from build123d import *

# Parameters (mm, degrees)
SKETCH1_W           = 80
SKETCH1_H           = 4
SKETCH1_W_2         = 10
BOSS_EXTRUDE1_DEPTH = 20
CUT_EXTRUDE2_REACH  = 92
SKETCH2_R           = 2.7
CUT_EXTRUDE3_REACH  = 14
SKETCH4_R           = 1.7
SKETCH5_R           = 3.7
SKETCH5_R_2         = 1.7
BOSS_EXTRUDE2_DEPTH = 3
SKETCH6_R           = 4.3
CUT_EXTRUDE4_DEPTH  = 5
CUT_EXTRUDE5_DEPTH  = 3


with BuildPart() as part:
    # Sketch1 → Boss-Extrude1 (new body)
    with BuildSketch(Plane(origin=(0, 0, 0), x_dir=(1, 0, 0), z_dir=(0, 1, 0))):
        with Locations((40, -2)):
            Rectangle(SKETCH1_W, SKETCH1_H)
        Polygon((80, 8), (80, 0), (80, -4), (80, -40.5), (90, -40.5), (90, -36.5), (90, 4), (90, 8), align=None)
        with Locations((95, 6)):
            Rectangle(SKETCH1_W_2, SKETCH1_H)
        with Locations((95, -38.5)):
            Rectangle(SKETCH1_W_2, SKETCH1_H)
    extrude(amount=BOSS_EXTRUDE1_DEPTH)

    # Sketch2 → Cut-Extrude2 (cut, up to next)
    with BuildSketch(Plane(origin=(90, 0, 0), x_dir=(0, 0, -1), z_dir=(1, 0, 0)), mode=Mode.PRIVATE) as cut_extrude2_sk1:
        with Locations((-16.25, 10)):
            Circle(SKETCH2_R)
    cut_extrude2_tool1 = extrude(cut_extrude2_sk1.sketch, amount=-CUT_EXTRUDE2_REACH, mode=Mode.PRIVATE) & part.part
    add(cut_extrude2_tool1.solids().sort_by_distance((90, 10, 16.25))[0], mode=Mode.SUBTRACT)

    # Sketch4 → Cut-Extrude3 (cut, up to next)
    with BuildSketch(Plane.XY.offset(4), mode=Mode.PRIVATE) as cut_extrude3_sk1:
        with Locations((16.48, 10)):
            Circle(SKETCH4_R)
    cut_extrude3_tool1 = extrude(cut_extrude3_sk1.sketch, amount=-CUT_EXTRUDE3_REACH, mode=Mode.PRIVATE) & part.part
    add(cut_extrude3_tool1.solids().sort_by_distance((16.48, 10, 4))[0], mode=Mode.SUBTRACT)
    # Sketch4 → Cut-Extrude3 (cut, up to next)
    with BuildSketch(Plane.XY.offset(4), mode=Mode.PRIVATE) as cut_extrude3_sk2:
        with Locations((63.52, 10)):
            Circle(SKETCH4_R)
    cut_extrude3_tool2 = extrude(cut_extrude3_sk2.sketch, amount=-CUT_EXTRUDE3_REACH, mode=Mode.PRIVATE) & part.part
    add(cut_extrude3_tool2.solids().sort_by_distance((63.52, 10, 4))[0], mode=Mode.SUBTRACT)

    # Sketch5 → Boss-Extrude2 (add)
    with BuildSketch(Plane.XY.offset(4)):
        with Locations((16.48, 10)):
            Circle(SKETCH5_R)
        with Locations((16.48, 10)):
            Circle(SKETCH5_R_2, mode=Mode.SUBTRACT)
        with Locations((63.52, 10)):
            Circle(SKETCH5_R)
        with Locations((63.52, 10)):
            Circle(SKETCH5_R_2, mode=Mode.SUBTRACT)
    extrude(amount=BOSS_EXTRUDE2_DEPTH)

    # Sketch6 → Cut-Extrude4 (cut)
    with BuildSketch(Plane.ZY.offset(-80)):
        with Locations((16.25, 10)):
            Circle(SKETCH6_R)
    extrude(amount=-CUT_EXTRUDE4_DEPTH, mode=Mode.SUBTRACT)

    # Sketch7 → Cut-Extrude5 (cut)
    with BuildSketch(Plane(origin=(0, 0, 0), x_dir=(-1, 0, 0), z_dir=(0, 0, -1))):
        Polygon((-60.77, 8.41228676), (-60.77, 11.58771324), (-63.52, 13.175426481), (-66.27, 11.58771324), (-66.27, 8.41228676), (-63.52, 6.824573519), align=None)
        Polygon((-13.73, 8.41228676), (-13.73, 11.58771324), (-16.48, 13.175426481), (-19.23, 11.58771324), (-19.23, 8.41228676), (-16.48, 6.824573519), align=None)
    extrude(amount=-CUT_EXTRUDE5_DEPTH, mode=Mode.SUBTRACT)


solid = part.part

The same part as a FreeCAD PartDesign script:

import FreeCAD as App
import Part
import Sketcher
from FreeCAD import Vector
Q = App.Units.Quantity


def add_polygon(sketch, points):
    """Adds a closed chain of lines whose ends are joined by coincident constraints."""
    first, n = sketch.GeometryCount, len(points)
    for a, b in zip(points, points[1:] + points[:1]):
        sketch.addGeometry(Part.LineSegment(App.Vector(*a, 0), App.Vector(*b, 0)), False)
    for i in range(n):
        sketch.addConstraint(Sketcher.Constraint("Coincident", first + i, 2, first + (i + 1) % n, 1))

doc = App.newDocument("Part")
body = doc.addObject("PartDesign::Body", "Body")

# Sketch on XZ plane
sketch1 = body.newObject("Sketcher::SketchObject", "Sketch")
sketch1.AttachmentSupport = (doc.getObject("XZ_Plane"), [""])
sketch1.MapMode = "FlatFace"
add_polygon(sketch1, [(0, 0), (0, 4), (80, 4), (80, 40.5), (100, 40.5), (100, 36.5), (90, 36.5), (90, -4), (100, -4), (100, -8), (80, -8), (80, 0)])  # lines 0-11
sketch1.addConstraint(Sketcher.Constraint("Vertical", 0))
sketch1.addConstraint(Sketcher.Constraint("Horizontal", 1))
sketch1.addConstraint(Sketcher.Constraint("Vertical", 2))
sketch1.addConstraint(Sketcher.Constraint("Horizontal", 3))
sketch1.addConstraint(Sketcher.Constraint("Vertical", 4))
sketch1.addConstraint(Sketcher.Constraint("Horizontal", 5))
sketch1.addConstraint(Sketcher.Constraint("Vertical", 6))
sketch1.addConstraint(Sketcher.Constraint("Horizontal", 7))
sketch1.addConstraint(Sketcher.Constraint("Vertical", 8))
sketch1.addConstraint(Sketcher.Constraint("Horizontal", 9))
sketch1.addConstraint(Sketcher.Constraint("Vertical", 10))
sketch1.addConstraint(Sketcher.Constraint("Horizontal", 11))
sketch1.addConstraint(Sketcher.Constraint("Coincident", 11, 2, -1, 1))
sketch1.addConstraint(Sketcher.Constraint("Vertical", 4, 2, 7, 2))
sketch1.addConstraint(Sketcher.Constraint("Vertical", 2, 2, 9, 2))
sketch1.addConstraint(Sketcher.Constraint("Equal", 0, 4))
sketch1.addConstraint(Sketcher.Constraint("Equal", 4, 8))
sketch1.addConstraint(Sketcher.Constraint("DistanceX", 1, 1, 1, 2, 80.0))
sketch1.addConstraint(Sketcher.Constraint("DistanceX", 3, 1, 3, 2, 20.0))
sketch1.addConstraint(Sketcher.Constraint("DistanceX", 5, 2, 5, 1, 10.0))
sketch1.addConstraint(Sketcher.Constraint("DistanceY", 0, 1, 0, 2, 4.0))
sketch1.addConstraint(Sketcher.Constraint("DistanceY", 10, 1, 10, 2, 8.0))
sketch1.addConstraint(Sketcher.Constraint("DistanceY", 2, 1, 2, 2, 36.5))
pad1 = body.newObject("PartDesign::Pad", "Pad")
pad1.Profile = sketch1
pad1.Length = 20
pad1.Reversed = True

# Sketch on YZ plane
sketch2 = body.newObject("Sketcher::SketchObject", "Sketch001")
sketch2.AttachmentSupport = (doc.getObject("YZ_Plane"), [""])
sketch2.MapMode = "FlatFace"
sketch2.AttachmentOffset = App.Placement(Vector(0, 0, 90), App.Rotation())
sketch2.addGeometry(Part.Circle(Vector(10, 16.2, 0), Vector(0, 0, 1), 2.7), False)
sketch2.addConstraint(Sketcher.Constraint("Diameter", 0, 5.4))
sketch2.addConstraint(Sketcher.Constraint("DistanceX", -1, 1, 0, 3, 10.0))
sketch2.addConstraint(Sketcher.Constraint("DistanceY", -1, 1, 0, 3, 16.25))
pocket1 = body.newObject("PartDesign::Pocket", "Pocket")
pocket1.Profile = sketch2
pocket1.Type = "UpToFirst"

# Sketch on XY plane
sketch3 = body.newObject("Sketcher::SketchObject", "Sketch002")
sketch3.AttachmentSupport = (doc.getObject("XY_Plane"), [""])
sketch3.MapMode = "FlatFace"
sketch3.AttachmentOffset = App.Placement(Vector(0, 0, 4), App.Rotation())
sketch3.addGeometry(Part.Circle(Vector(16.5, 10, 0), Vector(0, 0, 1), 1.7), False)
sketch3.addConstraint(Sketcher.Constraint("Diameter", 0, 3.4))
sketch3.addConstraint(Sketcher.Constraint("DistanceY", -1, 1, 0, 3, 10.0))
sketch3.addConstraint(Sketcher.Constraint("DistanceX", -1, 1, 0, 3, 16.48))
pocket2 = body.newObject("PartDesign::Pocket", "Pocket001")
pocket2.Profile = sketch3
pocket2.Type = "UpToFirst"

# Sketch on XY plane
sketch4 = body.newObject("Sketcher::SketchObject", "Sketch003")
sketch4.AttachmentSupport = (doc.getObject("XY_Plane"), [""])
sketch4.MapMode = "FlatFace"
sketch4.AttachmentOffset = App.Placement(Vector(0, 0, 4), App.Rotation())
sketch4.addGeometry(Part.Circle(Vector(63.5, 10, 0), Vector(0, 0, 1), 1.7), False)
sketch4.addConstraint(Sketcher.Constraint("Diameter", 0, 3.4))
sketch4.addConstraint(Sketcher.Constraint("DistanceY", -1, 1, 0, 3, 10.0))
sketch4.addConstraint(Sketcher.Constraint("DistanceX", -1, 1, 0, 3, 63.52))
pocket3 = body.newObject("PartDesign::Pocket", "Pocket002")
pocket3.Profile = sketch4
pocket3.Type = "UpToFirst"

# Sketch on XY plane
sketch5 = body.newObject("Sketcher::SketchObject", "Sketch004")
sketch5.AttachmentSupport = (doc.getObject("XY_Plane"), [""])
sketch5.MapMode = "FlatFace"
sketch5.AttachmentOffset = App.Placement(Vector(0, 0, 4), App.Rotation())
sketch5.addGeometry(Part.Circle(Vector(16.5, 10, 0), Vector(0, 0, 1), 3.7), False)
sketch5.addGeometry(Part.Circle(Vector(16.5, 10, 0), Vector(0, 0, 1), 1.7), False)
sketch5.addGeometry(Part.Circle(Vector(63.5, 10, 0), Vector(0, 0, 1), 3.7), False)
sketch5.addGeometry(Part.Circle(Vector(63.5, 10, 0), Vector(0, 0, 1), 1.7), False)
sketch5.addConstraint(Sketcher.Constraint("Coincident", 1, 3, 0, 3))
sketch5.addConstraint(Sketcher.Constraint("Coincident", 3, 3, 2, 3))
sketch5.addConstraint(Sketcher.Constraint("Equal", 0, 2))
sketch5.addConstraint(Sketcher.Constraint("Equal", 1, 3))
sketch5.addConstraint(Sketcher.Constraint("Horizontal", 1, 3, 2, 3))
sketch5.addConstraint(Sketcher.Constraint("Diameter", 0, 7.4))
sketch5.addConstraint(Sketcher.Constraint("Diameter", 1, 3.4))
sketch5.addConstraint(Sketcher.Constraint("DistanceY", -1, 1, 0, 3, 10.0))
sketch5.addConstraint(Sketcher.Constraint("DistanceX", -1, 1, 0, 3, 16.48))
sketch5.addConstraint(Sketcher.Constraint("DistanceX", -1, 1, 2, 3, 63.52))
pad2 = body.newObject("PartDesign::Pad", "Pad001")
pad2.Profile = sketch5
pad2.Length = 3

# Sketch on YZ plane
sketch6 = body.newObject("Sketcher::SketchObject", "Sketch005")
sketch6.AttachmentSupport = (doc.getObject("YZ_Plane"), [""])
sketch6.MapMode = "FlatFace"
sketch6.AttachmentOffset = App.Placement(Vector(0, 0, 80), App.Rotation())
sketch6.addGeometry(Part.Circle(Vector(10, 16.2, 0), Vector(0, 0, 1), 4.3), False)
sketch6.addConstraint(Sketcher.Constraint("Diameter", 0, 8.6))
sketch6.addConstraint(Sketcher.Constraint("DistanceX", -1, 1, 0, 3, 10.0))
sketch6.addConstraint(Sketcher.Constraint("DistanceY", -1, 1, 0, 3, 16.25))
pocket4 = body.newObject("PartDesign::Pocket", "Pocket003")
pocket4.Profile = sketch6
pocket4.Length = 5
pocket4.Reversed = True

# Sketch on XY plane
sketch7 = body.newObject("Sketcher::SketchObject", "Sketch006")
sketch7.AttachmentSupport = (doc.getObject("XY_Plane"), [""])
sketch7.MapMode = "FlatFace"
add_polygon(sketch7, [(60.8, 8.4), (60.8, 11.6), (63.5, 13.2), (66.3, 11.6), (66.3, 8.4), (63.5, 6.8)])  # lines 0-5
add_polygon(sketch7, [(13.7, 8.4), (13.7, 11.6), (16.5, 13.2), (19.2, 11.6), (19.2, 8.4), (16.5, 6.8)])  # lines 6-11
sketch7.addConstraint(Sketcher.Constraint("Vertical", 0))
sketch7.addConstraint(Sketcher.Constraint("Vertical", 3))
sketch7.addConstraint(Sketcher.Constraint("Vertical", 6))
sketch7.addConstraint(Sketcher.Constraint("Vertical", 9))
sketch7.addConstraint(Sketcher.Constraint("Parallel", 1, 4))
sketch7.addConstraint(Sketcher.Constraint("Parallel", 2, 5))
sketch7.addConstraint(Sketcher.Constraint("Parallel", 4, 7))
sketch7.addConstraint(Sketcher.Constraint("Parallel", 5, 8))
sketch7.addConstraint(Sketcher.Constraint("Parallel", 7, 10))
sketch7.addConstraint(Sketcher.Constraint("Parallel", 8, 11))
sketch7.addConstraint(Sketcher.Constraint("Horizontal", 0, 2, 2, 2))
sketch7.addConstraint(Sketcher.Constraint("Horizontal", 3, 2, 5, 2))
sketch7.addConstraint(Sketcher.Constraint("Horizontal", 2, 2, 6, 2))
sketch7.addConstraint(Sketcher.Constraint("Horizontal", 1, 2, 7, 2))
sketch7.addConstraint(Sketcher.Constraint("Horizontal", 6, 2, 8, 2))
sketch7.addConstraint(Sketcher.Constraint("Horizontal", 5, 2, 9, 2))
sketch7.addConstraint(Sketcher.Constraint("Horizontal", 4, 2, 10, 2))
sketch7.addConstraint(Sketcher.Constraint("Vertical", 1, 2, 4, 2))
sketch7.addConstraint(Sketcher.Constraint("Angle", 1, Q("30 deg")))
sketch7.addConstraint(Sketcher.Constraint("DistanceX", 0, 2, 2, 2, 5.5))
sketch7.addConstraint(Sketcher.Constraint("DistanceX", -1, 1, 0, 2, 60.77))
sketch7.addConstraint(Sketcher.Constraint("DistanceX", -1, 1, 6, 2, 13.73))
sketch7.addConstraint(Sketcher.Constraint("DistanceY", 0, 1, 0, 2, 3.175426))
sketch7.addConstraint(Sketcher.Constraint("DistanceY", -1, 1, 0, 2, 11.587713))
pocket5 = body.newObject("PartDesign::Pocket", "Pocket004")
pocket5.Profile = sketch7
pocket5.Length = 3
pocket5.Reversed = True

doc.recompute()
